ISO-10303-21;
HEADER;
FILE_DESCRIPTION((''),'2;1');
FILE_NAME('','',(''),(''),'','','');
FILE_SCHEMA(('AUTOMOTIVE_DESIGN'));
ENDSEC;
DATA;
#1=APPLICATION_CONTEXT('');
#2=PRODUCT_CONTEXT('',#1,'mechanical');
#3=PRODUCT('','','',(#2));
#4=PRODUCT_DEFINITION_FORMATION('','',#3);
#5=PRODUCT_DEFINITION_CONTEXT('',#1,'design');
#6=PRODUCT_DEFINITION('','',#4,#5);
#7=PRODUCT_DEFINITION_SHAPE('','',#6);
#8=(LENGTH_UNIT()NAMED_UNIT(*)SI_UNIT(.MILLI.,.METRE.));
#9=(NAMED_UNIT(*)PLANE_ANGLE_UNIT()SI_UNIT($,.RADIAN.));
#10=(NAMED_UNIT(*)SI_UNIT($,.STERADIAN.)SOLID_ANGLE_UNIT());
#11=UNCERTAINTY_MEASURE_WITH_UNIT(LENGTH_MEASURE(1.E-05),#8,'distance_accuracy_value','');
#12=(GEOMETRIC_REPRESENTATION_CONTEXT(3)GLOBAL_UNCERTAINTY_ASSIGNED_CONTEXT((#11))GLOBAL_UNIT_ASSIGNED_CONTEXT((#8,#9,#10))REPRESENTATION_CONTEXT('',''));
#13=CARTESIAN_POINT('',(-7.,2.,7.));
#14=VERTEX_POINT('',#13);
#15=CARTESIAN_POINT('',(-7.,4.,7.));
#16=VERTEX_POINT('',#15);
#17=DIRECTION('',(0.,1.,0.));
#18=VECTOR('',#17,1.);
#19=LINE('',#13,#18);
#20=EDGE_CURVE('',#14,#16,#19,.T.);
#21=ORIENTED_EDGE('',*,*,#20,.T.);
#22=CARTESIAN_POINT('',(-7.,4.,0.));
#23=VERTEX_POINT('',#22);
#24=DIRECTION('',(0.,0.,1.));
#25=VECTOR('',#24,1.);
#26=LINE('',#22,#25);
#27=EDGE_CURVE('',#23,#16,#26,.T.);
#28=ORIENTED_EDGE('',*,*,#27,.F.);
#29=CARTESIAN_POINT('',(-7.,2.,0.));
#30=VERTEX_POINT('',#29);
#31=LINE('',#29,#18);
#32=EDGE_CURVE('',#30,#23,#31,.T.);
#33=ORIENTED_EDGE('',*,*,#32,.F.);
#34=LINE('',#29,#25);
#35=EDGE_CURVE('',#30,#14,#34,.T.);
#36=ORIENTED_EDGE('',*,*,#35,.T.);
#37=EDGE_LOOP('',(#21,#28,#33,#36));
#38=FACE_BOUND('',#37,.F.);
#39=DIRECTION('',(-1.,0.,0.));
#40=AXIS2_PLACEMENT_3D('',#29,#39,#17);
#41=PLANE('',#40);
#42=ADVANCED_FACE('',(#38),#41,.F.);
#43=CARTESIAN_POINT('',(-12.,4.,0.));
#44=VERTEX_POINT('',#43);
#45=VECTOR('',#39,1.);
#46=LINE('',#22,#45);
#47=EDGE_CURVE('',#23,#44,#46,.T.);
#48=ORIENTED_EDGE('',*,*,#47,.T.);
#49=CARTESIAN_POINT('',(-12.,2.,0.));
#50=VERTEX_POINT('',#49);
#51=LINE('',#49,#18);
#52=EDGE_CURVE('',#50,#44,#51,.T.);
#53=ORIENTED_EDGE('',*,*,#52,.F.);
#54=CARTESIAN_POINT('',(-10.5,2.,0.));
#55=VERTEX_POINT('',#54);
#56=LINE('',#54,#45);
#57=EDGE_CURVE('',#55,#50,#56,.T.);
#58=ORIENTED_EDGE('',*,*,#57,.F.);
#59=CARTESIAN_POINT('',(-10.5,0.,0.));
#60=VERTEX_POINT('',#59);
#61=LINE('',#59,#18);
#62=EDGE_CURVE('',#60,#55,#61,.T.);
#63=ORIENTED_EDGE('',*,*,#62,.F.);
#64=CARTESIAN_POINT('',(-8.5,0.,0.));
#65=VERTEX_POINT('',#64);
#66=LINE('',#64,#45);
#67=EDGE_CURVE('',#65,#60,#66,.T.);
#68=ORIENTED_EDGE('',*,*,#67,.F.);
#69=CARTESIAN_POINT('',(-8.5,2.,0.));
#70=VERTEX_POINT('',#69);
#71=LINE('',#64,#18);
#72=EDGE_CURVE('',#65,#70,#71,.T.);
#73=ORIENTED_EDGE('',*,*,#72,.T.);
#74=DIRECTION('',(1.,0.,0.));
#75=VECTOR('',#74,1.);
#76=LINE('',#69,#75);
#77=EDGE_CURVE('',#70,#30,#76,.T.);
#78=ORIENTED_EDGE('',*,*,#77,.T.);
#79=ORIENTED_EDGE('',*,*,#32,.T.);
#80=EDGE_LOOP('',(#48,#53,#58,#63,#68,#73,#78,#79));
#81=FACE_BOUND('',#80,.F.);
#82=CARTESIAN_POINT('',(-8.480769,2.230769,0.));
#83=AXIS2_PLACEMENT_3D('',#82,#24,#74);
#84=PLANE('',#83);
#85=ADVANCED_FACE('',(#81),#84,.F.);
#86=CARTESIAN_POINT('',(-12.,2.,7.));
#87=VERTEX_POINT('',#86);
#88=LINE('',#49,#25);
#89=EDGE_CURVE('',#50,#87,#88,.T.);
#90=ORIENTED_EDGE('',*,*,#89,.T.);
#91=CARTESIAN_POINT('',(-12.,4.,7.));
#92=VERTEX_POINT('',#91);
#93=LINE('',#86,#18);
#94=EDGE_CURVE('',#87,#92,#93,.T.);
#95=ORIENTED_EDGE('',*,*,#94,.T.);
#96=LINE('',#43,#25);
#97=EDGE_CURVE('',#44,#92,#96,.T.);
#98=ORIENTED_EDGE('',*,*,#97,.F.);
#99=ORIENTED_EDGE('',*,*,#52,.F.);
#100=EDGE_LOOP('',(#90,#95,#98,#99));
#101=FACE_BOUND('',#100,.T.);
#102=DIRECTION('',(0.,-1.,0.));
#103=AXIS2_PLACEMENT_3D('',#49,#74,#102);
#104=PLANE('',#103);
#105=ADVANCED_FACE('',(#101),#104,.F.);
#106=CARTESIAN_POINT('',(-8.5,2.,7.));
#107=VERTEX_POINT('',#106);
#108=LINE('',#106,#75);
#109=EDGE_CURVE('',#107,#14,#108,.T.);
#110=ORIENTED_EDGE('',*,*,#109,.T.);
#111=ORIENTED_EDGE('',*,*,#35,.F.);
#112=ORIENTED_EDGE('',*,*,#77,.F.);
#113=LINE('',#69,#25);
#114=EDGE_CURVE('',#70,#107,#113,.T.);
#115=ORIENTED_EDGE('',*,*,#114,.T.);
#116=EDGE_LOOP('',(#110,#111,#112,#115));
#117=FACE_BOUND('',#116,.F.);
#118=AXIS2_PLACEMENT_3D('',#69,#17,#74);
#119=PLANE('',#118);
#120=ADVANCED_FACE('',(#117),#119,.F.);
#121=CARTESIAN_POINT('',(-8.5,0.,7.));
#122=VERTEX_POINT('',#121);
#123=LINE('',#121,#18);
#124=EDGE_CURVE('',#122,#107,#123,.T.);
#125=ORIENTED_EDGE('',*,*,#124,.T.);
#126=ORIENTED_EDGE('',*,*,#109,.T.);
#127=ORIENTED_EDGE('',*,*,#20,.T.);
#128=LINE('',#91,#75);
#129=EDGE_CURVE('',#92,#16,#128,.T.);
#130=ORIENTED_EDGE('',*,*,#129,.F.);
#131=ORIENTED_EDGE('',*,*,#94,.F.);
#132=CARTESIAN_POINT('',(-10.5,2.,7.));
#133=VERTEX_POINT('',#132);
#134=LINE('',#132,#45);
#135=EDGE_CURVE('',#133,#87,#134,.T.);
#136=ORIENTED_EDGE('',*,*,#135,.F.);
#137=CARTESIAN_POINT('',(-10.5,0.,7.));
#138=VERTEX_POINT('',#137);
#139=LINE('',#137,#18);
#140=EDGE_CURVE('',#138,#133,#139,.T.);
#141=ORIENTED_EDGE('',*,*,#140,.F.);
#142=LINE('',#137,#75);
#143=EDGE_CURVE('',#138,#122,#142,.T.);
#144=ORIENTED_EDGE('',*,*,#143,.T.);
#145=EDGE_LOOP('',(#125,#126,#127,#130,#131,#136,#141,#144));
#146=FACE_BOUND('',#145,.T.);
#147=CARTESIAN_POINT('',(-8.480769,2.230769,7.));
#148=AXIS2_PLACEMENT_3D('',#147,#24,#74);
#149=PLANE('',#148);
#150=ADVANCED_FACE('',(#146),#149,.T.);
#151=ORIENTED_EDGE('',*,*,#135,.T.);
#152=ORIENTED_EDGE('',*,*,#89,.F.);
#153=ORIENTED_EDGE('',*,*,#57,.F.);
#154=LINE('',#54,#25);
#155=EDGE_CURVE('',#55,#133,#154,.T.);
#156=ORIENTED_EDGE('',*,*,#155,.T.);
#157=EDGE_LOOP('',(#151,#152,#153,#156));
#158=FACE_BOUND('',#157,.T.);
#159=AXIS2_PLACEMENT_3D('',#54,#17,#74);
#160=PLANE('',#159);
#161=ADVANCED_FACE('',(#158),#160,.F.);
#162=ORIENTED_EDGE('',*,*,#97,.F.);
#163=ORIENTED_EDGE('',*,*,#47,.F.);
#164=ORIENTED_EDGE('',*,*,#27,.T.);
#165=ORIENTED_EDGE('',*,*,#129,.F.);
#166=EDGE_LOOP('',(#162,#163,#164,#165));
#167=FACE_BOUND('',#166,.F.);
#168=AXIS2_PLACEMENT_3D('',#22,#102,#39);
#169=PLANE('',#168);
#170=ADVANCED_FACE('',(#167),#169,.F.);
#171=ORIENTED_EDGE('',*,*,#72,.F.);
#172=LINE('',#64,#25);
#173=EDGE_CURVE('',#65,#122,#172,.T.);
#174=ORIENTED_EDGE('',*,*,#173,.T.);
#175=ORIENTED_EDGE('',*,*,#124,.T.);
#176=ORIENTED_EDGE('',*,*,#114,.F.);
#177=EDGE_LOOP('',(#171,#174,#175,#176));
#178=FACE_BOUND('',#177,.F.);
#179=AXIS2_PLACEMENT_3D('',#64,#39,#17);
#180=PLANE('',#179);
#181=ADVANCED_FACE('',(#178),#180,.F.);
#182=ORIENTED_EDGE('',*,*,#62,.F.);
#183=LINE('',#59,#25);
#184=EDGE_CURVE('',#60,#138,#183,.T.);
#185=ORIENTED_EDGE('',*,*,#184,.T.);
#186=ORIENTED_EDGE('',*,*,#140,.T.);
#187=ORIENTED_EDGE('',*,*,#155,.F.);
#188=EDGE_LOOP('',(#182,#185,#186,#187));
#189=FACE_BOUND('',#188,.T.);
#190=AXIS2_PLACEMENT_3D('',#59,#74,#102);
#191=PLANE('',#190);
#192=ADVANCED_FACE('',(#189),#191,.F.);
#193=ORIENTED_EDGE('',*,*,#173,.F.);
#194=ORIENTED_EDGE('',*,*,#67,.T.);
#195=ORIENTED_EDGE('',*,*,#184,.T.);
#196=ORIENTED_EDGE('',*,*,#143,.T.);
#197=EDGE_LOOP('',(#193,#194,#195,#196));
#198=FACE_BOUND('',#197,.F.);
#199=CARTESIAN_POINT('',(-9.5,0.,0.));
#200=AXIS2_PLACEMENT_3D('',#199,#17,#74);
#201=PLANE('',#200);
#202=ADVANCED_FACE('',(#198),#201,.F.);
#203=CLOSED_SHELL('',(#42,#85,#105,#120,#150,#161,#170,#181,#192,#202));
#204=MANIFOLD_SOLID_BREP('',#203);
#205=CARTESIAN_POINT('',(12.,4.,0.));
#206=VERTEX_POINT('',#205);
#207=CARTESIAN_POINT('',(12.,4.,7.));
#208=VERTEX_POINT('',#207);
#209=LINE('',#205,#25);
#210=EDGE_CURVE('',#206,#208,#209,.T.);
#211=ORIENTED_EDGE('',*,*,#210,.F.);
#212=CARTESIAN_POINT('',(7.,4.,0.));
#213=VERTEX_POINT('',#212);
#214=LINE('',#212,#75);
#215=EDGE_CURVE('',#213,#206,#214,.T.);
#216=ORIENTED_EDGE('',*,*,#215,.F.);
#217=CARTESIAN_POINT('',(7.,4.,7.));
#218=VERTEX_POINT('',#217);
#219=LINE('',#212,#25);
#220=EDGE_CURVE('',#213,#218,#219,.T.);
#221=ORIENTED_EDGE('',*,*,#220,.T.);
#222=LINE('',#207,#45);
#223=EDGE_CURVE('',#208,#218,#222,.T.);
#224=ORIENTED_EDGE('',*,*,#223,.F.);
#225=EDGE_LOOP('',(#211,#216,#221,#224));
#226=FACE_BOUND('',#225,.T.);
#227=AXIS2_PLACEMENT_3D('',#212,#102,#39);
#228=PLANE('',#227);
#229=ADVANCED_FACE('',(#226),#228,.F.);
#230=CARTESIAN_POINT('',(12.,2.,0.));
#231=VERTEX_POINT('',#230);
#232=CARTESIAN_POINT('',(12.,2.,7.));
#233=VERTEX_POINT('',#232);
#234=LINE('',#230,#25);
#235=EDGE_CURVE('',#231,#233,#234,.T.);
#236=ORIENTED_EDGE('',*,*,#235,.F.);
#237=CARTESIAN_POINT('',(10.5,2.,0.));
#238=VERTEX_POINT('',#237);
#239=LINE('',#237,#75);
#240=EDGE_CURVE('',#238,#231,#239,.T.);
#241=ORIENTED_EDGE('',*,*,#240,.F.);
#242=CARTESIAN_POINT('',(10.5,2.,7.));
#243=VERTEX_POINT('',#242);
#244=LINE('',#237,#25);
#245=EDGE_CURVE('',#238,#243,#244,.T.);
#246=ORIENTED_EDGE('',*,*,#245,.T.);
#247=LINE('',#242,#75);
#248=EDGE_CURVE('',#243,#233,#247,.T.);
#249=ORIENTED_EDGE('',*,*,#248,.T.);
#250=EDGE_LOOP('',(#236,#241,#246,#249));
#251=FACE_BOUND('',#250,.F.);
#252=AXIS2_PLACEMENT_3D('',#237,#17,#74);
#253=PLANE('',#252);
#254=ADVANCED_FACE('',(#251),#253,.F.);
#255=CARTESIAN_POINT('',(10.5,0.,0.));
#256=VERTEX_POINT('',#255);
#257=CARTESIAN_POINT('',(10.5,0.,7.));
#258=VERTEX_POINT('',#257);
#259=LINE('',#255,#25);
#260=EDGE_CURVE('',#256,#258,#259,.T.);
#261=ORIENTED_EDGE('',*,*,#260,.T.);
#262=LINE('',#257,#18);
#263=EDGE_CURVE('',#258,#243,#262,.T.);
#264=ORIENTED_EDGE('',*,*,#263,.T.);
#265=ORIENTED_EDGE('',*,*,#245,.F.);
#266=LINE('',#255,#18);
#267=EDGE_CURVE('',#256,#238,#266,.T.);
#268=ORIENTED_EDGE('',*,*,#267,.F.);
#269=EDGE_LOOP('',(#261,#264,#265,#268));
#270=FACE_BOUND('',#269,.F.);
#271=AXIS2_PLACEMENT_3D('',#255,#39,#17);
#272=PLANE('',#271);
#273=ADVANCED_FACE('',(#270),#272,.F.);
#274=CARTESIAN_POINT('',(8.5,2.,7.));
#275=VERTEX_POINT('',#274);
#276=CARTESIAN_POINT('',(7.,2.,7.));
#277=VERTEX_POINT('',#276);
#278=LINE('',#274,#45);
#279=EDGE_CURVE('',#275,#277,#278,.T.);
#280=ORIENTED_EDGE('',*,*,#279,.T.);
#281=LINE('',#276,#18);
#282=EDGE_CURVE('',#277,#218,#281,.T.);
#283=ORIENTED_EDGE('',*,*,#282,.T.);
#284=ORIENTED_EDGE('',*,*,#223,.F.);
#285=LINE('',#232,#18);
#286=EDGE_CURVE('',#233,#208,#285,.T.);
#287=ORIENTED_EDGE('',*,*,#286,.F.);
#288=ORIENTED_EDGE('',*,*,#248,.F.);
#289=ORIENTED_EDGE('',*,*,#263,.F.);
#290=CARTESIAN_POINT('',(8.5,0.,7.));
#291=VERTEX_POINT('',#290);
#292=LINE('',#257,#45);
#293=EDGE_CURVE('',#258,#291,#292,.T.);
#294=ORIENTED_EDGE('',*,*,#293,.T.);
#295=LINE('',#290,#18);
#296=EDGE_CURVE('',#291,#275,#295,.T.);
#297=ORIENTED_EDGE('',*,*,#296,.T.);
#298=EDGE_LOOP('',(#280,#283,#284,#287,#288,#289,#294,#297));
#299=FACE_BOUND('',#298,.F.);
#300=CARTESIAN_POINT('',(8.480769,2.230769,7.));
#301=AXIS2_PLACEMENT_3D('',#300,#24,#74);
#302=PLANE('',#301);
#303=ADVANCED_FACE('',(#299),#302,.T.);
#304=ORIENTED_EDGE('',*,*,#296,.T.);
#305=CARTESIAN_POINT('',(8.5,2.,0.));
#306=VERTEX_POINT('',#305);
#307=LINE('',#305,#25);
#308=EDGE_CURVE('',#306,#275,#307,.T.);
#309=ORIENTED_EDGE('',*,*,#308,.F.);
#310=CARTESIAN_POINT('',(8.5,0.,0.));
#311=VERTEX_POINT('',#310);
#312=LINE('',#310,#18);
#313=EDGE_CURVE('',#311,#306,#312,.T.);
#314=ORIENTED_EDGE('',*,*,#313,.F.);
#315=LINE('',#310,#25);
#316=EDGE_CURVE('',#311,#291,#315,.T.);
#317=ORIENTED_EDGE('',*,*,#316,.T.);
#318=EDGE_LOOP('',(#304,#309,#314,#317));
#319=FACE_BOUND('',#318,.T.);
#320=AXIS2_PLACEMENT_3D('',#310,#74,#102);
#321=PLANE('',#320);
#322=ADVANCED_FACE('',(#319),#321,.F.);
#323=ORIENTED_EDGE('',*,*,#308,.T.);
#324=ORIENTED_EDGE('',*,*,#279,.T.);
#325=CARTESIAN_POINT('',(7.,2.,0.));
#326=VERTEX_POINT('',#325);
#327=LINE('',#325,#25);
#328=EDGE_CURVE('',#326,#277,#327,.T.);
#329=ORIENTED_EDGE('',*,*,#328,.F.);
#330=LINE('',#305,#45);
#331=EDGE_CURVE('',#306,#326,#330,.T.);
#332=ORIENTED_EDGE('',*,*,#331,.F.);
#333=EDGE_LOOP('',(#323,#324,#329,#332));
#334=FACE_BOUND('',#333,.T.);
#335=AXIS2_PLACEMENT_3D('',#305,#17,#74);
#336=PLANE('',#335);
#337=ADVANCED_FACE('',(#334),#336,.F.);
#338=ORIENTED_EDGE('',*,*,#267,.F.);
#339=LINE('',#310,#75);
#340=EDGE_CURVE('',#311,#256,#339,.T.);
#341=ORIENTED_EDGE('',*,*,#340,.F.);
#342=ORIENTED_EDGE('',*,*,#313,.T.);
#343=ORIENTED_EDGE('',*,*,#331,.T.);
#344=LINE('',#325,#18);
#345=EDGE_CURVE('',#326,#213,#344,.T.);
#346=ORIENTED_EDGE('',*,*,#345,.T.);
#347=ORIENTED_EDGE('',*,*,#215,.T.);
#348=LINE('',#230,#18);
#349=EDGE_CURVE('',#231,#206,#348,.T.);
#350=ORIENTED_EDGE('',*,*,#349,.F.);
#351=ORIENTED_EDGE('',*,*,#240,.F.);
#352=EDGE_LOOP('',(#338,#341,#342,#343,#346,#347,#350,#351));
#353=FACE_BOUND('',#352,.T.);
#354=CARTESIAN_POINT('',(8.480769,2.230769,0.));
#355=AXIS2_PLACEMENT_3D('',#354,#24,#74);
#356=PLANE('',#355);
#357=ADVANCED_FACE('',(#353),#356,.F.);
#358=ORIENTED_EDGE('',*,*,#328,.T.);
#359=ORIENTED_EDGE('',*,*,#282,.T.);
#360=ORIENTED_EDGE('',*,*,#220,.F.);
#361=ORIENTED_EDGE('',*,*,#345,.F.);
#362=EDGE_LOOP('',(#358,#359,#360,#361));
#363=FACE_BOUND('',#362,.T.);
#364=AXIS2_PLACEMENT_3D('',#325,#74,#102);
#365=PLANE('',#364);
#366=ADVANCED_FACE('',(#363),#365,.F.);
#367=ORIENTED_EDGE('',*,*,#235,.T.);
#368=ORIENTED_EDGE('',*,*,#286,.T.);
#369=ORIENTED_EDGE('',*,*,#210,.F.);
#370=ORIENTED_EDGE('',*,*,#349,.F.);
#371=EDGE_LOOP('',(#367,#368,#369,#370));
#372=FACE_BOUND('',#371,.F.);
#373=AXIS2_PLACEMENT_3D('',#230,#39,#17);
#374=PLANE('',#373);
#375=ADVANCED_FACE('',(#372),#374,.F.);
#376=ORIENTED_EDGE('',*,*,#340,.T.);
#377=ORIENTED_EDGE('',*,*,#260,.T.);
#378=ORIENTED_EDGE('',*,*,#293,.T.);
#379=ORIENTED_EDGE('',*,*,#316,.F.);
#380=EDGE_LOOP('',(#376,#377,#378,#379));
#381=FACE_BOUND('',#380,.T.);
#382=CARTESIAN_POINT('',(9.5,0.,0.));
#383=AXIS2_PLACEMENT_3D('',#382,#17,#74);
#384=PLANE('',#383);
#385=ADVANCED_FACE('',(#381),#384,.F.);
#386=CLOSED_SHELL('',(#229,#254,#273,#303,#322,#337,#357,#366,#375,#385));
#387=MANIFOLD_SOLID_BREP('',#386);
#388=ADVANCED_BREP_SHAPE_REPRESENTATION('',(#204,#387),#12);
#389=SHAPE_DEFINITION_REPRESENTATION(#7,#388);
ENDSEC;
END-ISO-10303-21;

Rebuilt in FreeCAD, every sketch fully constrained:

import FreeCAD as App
import Part
import Sketcher
from FreeCAD import Vector
Q = App.Units.Quantity

doc = App.newDocument("Part")
body = doc.addObject("PartDesign::Body", "Body")

# Sketch on XY plane
sketch1 = body.newObject("Sketcher::SketchObject", "Sketch")
sketch1.AttachmentSupport = (doc.getObject("XY_Plane"), [""])
sketch1.MapMode = "FlatFace"
sketch1.addGeometry(Part.LineSegment(Vector(9.5, 0, 0), Vector(10.5, 0, 0)), False)
sketch1.addGeometry(Part.LineSegment(Vector(10.5, 0, 0), Vector(10.5, 2, 0)), False)
sketch1.addGeometry(Part.LineSegment(Vector(10.5, 2, 0), Vector(12, 2, 0)), False)
sketch1.addGeometry(Part.LineSegment(Vector(12, 2, 0), Vector(12, 4, 0)), False)
sketch1.addGeometry(Part.LineSegment(Vector(12, 4, 0), Vector(9.5, 4, 0)), False)
sketch1.addGeometry(Part.LineSegment(Vector(9.5, 4, 0), Vector(9.5, 0, 0)), False)
sketch1.addConstraint(Sketcher.Constraint("Coincident", 0, 2, 1, 1))
sketch1.addConstraint(Sketcher.Constraint("Coincident", 1, 2, 2, 1))
sketch1.addConstraint(Sketcher.Constraint("Coincident", 2, 2, 3, 1))
sketch1.addConstraint(Sketcher.Constraint("Coincident", 3, 2, 4, 1))
sketch1.addConstraint(Sketcher.Constraint("Coincident", 4, 2, 5, 1))
sketch1.addConstraint(Sketcher.Constraint("Coincident", 5, 2, 0, 1))
sketch1.addConstraint(Sketcher.Constraint("Horizontal", 0))
sketch1.addConstraint(Sketcher.Constraint("Vertical", 1))
sketch1.addConstraint(Sketcher.Constraint("Horizontal", 2))
sketch1.addConstraint(Sketcher.Constraint("Vertical", 3))
sketch1.addConstraint(Sketcher.Constraint("Horizontal", 4))
sketch1.addConstraint(Sketcher.Constraint("Vertical", 5))
sketch1.addConstraint(Sketcher.Constraint("PointOnObject", 0, 2, -1))
sketch1.addConstraint(Sketcher.Constraint("Equal", 1, 3))
sketch1.addConstraint(Sketcher.Constraint("DistanceX", 0, 1, 0, 2, Q("1 mm")))
sketch1.addConstraint(Sketcher.Constraint("DistanceY", 1, 1, 1, 2, Q("2 mm")))
sketch1.addConstraint(Sketcher.Constraint("DistanceX", 2, 1, 2, 2, Q("1.5 mm")))
sketch1.addConstraint(Sketcher.Constraint("DistanceX", -1, 1, 2, 2, Q("12 mm")))
pad1 = body.newObject("PartDesign::Pad", "Pad")
pad1.Profile = sketch1
pad1.Length = 7
body2 = doc.addObject("PartDesign::Body", "Body001")
doc.recompute()

body2.BaseFeature = body
doc.recompute()

mirroring = doc.addObject("Part::Mirroring", "Mirroring")
mirroring.Source = body
mirroring.Base = Vector(9.5, 2, 3.5)
mirroring.Normal = Vector(-1, 0, 0)
body3 = doc.addObject("PartDesign::Body", "Body002")
body3.BaseFeature = mirroring
boolean = body2.newObject("PartDesign::Boolean", "Boolean")
boolean.Type = "Fuse"
boolean.addObjects([body3])
doc.recompute()
body4 = doc.addObject("PartDesign::Body", "Body003")
doc.recompute()

mirroring2 = doc.addObject("Part::Mirroring", "Mirroring001")
mirroring2.Source = body2
mirroring2.Base = Vector(0, 0, 0)
mirroring2.Normal = Vector(1, 0, 0)
body4.BaseFeature = mirroring2
doc.recompute()
mirroring.Visibility = False
mirroring2.Visibility = False

doc.recompute()
